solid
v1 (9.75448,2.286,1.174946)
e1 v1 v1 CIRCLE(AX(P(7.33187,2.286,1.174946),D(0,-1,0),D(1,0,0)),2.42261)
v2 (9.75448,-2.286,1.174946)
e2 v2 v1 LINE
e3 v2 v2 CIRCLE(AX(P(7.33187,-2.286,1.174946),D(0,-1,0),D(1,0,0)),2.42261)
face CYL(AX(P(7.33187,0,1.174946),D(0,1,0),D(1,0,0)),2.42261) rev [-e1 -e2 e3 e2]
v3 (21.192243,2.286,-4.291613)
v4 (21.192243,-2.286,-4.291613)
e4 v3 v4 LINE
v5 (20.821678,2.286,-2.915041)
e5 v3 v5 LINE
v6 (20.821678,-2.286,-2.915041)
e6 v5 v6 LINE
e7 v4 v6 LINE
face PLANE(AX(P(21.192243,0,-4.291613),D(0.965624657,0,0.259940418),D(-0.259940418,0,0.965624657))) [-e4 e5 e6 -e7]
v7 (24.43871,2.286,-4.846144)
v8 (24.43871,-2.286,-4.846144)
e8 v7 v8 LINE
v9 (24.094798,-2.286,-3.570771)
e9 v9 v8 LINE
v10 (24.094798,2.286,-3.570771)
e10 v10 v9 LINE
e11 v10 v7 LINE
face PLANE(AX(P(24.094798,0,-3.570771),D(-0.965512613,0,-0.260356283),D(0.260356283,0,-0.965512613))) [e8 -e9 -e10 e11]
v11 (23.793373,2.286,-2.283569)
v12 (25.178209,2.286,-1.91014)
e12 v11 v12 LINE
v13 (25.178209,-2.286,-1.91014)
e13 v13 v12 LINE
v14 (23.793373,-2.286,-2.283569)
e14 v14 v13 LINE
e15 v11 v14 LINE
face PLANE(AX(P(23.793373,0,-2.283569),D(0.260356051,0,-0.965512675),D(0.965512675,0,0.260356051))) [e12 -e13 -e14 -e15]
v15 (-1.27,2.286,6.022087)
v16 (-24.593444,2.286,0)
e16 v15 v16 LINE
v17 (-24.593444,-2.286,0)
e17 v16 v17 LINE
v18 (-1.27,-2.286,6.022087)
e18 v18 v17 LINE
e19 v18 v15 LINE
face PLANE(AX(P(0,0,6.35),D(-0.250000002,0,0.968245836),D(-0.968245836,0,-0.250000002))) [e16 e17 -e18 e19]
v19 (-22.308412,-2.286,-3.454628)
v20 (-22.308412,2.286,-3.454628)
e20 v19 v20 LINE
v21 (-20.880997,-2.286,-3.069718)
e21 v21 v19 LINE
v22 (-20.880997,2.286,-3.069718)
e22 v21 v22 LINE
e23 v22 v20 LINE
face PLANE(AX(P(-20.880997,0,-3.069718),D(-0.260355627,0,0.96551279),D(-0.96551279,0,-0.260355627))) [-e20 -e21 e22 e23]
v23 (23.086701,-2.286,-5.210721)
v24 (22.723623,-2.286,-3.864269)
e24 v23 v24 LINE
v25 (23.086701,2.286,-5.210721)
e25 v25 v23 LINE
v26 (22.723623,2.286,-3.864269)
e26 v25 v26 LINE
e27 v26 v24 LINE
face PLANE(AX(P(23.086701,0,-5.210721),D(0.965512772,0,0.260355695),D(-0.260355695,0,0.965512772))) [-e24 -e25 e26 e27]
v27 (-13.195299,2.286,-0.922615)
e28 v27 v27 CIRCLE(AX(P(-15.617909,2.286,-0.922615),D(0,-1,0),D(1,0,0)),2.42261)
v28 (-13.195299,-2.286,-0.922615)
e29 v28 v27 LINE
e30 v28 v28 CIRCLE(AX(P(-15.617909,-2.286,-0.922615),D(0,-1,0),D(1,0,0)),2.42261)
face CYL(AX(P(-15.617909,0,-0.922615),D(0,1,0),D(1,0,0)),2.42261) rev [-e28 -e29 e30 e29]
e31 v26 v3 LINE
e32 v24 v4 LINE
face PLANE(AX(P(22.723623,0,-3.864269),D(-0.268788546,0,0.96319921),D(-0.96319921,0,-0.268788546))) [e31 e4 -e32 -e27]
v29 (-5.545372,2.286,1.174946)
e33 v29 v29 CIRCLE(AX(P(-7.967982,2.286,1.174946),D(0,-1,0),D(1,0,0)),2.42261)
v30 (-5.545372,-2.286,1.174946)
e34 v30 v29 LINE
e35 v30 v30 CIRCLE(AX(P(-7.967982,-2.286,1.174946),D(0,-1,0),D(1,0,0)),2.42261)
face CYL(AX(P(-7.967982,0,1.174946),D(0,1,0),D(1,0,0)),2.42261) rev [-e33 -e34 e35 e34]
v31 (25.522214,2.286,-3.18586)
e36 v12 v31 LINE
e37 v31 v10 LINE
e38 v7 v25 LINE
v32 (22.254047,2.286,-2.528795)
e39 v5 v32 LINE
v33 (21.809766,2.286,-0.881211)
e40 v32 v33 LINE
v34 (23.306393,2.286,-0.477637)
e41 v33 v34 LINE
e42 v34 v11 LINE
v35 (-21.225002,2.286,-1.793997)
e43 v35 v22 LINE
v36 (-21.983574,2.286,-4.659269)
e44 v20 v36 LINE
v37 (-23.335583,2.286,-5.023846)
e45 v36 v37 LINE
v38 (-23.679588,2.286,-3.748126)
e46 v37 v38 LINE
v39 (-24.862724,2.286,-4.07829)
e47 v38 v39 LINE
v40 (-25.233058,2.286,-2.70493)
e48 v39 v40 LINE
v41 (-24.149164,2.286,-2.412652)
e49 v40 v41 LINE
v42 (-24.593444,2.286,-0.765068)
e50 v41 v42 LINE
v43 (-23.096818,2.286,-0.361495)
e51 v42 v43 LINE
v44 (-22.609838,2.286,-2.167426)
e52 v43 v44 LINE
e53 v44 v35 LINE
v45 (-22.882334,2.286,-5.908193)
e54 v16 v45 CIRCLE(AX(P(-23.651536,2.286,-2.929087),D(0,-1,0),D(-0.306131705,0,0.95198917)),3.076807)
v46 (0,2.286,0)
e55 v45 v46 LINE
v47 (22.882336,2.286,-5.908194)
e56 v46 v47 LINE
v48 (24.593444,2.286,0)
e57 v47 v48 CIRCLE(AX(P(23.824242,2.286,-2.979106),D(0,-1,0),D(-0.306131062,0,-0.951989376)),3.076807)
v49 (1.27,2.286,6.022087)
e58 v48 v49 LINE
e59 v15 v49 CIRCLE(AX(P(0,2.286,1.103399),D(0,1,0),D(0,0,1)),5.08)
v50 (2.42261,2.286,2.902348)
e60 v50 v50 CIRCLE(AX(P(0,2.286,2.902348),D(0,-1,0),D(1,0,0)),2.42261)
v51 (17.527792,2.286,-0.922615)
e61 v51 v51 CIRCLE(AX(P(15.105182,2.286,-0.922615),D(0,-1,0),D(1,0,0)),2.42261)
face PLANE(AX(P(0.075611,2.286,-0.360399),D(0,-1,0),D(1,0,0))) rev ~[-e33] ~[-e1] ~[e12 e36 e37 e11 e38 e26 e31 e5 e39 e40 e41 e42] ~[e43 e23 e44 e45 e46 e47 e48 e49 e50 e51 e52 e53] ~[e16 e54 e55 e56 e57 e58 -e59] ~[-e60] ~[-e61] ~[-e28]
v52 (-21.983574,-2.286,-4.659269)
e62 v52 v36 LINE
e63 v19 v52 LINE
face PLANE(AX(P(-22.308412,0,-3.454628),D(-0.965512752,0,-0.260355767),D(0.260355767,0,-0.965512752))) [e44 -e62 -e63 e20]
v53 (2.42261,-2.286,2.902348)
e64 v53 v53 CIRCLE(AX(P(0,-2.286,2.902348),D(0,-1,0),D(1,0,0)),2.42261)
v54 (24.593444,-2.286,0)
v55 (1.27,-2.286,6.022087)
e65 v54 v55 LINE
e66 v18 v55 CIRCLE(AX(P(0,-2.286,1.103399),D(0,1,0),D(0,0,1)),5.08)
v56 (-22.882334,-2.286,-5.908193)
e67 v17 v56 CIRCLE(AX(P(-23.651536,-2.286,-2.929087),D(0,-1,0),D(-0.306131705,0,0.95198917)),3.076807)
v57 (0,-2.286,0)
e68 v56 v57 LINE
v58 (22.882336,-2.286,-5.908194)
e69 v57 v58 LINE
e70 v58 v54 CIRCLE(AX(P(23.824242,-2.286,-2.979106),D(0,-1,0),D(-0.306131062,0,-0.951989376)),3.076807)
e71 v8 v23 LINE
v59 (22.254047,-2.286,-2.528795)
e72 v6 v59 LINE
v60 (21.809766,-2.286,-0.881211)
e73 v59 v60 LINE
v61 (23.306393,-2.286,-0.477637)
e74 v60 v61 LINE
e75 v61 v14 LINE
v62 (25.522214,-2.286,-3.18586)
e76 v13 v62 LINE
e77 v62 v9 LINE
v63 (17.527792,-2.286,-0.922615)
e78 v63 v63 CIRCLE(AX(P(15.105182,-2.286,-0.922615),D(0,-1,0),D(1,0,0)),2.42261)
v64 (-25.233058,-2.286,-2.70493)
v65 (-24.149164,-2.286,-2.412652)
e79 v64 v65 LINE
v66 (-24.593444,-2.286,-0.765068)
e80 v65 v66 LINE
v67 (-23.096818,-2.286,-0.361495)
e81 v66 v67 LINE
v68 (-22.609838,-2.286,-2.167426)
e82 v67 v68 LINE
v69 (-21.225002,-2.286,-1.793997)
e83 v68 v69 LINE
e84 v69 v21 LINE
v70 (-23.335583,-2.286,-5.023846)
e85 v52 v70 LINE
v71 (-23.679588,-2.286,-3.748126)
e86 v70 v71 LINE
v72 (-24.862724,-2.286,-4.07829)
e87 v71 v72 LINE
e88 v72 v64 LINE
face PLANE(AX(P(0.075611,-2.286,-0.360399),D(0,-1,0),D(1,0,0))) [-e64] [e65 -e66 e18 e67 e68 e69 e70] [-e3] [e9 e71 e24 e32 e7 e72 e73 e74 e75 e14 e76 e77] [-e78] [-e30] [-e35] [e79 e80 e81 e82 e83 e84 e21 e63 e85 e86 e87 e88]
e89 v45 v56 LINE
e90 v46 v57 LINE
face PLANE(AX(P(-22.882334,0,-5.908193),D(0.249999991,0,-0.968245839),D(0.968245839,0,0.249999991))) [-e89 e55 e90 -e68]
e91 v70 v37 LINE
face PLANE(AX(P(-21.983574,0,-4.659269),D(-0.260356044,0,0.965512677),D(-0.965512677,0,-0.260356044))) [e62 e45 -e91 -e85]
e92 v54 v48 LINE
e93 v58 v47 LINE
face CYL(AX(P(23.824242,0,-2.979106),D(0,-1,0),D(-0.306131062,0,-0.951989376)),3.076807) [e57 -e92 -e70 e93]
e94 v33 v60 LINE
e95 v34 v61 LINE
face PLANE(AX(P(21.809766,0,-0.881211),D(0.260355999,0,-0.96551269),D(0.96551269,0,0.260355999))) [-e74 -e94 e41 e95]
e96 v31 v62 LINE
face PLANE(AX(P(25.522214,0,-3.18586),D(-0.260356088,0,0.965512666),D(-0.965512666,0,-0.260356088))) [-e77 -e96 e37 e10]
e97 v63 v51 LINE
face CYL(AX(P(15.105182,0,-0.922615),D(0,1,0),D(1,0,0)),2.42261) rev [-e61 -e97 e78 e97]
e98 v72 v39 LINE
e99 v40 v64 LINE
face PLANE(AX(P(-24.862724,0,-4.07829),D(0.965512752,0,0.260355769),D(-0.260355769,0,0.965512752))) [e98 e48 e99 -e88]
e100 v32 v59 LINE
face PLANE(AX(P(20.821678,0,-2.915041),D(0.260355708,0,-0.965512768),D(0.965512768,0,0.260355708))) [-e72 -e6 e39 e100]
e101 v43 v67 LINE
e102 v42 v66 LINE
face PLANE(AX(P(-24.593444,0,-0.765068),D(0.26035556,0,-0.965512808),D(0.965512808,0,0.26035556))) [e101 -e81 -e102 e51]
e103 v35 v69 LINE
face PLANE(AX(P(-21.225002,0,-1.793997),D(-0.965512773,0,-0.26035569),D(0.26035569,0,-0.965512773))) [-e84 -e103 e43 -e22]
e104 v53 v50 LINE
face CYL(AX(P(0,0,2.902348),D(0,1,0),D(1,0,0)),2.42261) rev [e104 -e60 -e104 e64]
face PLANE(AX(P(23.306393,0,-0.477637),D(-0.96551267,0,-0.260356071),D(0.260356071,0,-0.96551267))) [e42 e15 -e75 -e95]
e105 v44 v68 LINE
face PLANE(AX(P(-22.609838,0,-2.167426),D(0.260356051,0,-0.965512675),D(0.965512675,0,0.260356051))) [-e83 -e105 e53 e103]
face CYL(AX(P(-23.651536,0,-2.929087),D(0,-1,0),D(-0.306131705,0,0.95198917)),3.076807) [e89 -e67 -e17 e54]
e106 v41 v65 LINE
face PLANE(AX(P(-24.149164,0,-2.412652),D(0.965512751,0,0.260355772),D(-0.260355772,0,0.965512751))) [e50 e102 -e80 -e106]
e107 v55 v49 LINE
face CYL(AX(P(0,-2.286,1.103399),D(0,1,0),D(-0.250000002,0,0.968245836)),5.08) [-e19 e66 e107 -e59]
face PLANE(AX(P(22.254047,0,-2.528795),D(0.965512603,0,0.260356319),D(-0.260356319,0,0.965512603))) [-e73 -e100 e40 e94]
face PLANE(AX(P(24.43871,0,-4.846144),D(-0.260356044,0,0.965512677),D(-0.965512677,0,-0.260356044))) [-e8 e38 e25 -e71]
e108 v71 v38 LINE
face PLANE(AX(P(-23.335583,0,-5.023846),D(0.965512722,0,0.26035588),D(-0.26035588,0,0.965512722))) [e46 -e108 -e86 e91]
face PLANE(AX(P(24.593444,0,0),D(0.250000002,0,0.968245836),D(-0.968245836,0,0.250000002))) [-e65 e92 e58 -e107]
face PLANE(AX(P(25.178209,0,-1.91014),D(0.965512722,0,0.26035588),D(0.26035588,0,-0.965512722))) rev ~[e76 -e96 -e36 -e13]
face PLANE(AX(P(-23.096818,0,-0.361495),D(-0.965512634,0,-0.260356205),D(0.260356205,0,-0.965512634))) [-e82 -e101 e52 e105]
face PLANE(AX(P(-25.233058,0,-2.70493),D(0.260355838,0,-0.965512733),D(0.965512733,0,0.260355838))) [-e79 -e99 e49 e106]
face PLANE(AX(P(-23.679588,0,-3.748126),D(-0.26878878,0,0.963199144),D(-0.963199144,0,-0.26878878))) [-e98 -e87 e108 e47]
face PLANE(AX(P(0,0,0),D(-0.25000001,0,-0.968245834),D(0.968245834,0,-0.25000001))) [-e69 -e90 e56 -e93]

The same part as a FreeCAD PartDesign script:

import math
import FreeCAD as App
import Part
import Sketcher
Q = App.Units.Quantity


def edges_at(feature, points):
    """Names of the edges that pass closest to the given points."""
    edges = feature.Shape.Edges
    near = lambda p: min(range(len(edges)), key=lambda i: edges[i].distToShape(Part.Vertex(*p))[0])
    return sorted({f"Edge{near(p) + 1}" for p in points})


def add_polygon(sketch, points):
    """Adds a closed chain of lines whose ends are joined by coincident constraints."""
    first, n = sketch.GeometryCount, len(points)
    for a, b in zip(points, points[1:] + points[:1]):
        sketch.addGeometry(Part.LineSegment(App.Vector(*a, 0), App.Vector(*b, 0)), False)
    for i in range(n):
        sketch.addConstraint(Sketcher.Constraint("Coincident", first + i, 2, first + (i + 1) % n, 1))

doc = App.newDocument("Part")
body = doc.addObject("PartDesign::Body", "Body")

# Sketch on XZ plane
sketch1 = body.newObject("Sketcher::SketchObject", "Sketch")
sketch1.AttachmentSupport = (doc.getObject("XZ_Plane"), [""])
sketch1.MapMode = "FlatFace"
sketch1.addGeometry(Part.LineSegment(App.Vector(0, 6.35, 0), App.Vector(-24.593444, 0, 0)), False)  # 0
sketch1.addGeometry(Part.ArcOfCircle(Part.Circle(App.Vector(-23.651536, -2.929087, 0), App.Vector(0, 0, 1), 3.076807), math.radians(107.826263), math.radians(284.477511)), False)  # 1
sketch1.addGeometry(Part.LineSegment(App.Vector(-22.882334, -5.908193, 0), App.Vector(0, 0, 0)), False)  # 2
sketch1.addGeometry(Part.LineSegment(App.Vector(0, 0, 0), App.Vector(22.882336, -5.908194, 0)), False)  # 3
sketch1.addGeometry(Part.ArcOfCircle(Part.Circle(App.Vector(23.824242, -2.979106, 0), App.Vector(0, 0, 1), 3.076807), math.radians(-107.826224), math.radians(75.522491)), False)  # 4
sketch1.addGeometry(Part.LineSegment(App.Vector(24.593444, 0, 0), App.Vector(0, 6.35, 0)), False)  # 5
add_polygon(sketch1, [(-24.862724, -4.07829), (-25.233058, -2.70493), (-24.149164, -2.412652), (-24.593444, -0.765068), (-23.096818, -0.361495), (-22.609838, -2.167426), (-21.225002, -1.793997), (-20.880997, -3.069718), (-22.308412, -3.454628), (-21.983574, -4.659269), (-23.335583, -5.023846), (-23.679588, -3.748126)])  # lines 6-17
sketch1.addGeometry(Part.Circle(App.Vector(-15.617909, -0.922615, 0), App.Vector(0, 0, 1), 2.42261), False)  # 18
add_polygon(sketch1, [(21.192243, -4.291613), (20.821678, -2.915041), (22.254047, -2.528795), (21.809766, -0.881211), (23.306393, -0.477637), (23.793373, -2.283569), (25.178209, -1.91014), (25.522214, -3.18586), (24.094798, -3.570771), (24.43871, -4.846144), (23.086701, -5.210721), (22.723623, -3.864269)])  # lines 19-30
sketch1.addGeometry(Part.Circle(App.Vector(15.105182, -0.922615, 0), App.Vector(0, 0, 1), 2.42261), False)  # 31
sketch1.addGeometry(Part.Circle(App.Vector(-7.967982, 1.174946, 0), App.Vector(0, 0, 1), 2.42261), False)  # 32
sketch1.addGeometry(Part.Circle(App.Vector(0, 2.902348, 0), App.Vector(0, 0, 1), 2.42261), False)  # 33
sketch1.addGeometry(Part.Circle(App.Vector(7.33187, 1.174946, 0), App.Vector(0, 0, 1), 2.42261), False)  # 34
sketch1.addConstraint([
    Sketcher.Constraint("Coincident", 0, 2, 1, 1),
    Sketcher.Constraint("Coincident", 1, 2, 2, 1),
    Sketcher.Constraint("Coincident", 2, 2, 3, 1),
    Sketcher.Constraint("Coincident", 3, 2, 4, 1),
    Sketcher.Constraint("Coincident", 4, 2, 5, 1),
    Sketcher.Constraint("Coincident", 5, 2, 0, 1),
    Sketcher.Constraint("Coincident", 2, 2, -1, 1),
    Sketcher.Constraint("PointOnObject", 33, 3, -2),
    Sketcher.Constraint("PointOnObject", 0, 2, -1),
    Sketcher.Constraint("PointOnObject", 4, 2, -1),
    Sketcher.Constraint("PointOnObject", 5, 2, -2),
    Sketcher.Constraint("Distance", 0, Q("1 in")),
    Sketcher.Constraint("Distance", 5, Q("1 in")),
    Sketcher.Constraint("DistanceY", -1, 1, 5, 2, Q("0.25 in")),
    Sketcher.Constraint("Diameter", 18, 4.84522),
    Sketcher.Constraint("Diameter", 31, 4.84522),
    Sketcher.Constraint("Diameter", 32, 4.84522),
    Sketcher.Constraint("Diameter", 33, 4.84522),
    Sketcher.Constraint("Diameter", 34, 4.84522),
    Sketcher.Constraint("DistanceX", 32, 3, -1, 1, Q("0.3137001 in")),
    Sketcher.Constraint("Radius", 1, 3.076807),
    Sketcher.Constraint("Radius", 4, 3.076807),
    Sketcher.Constraint("Distance", 11, 1.434301),
    Sketcher.Constraint("Distance", 13, 1.478401),
    Sketcher.Constraint("Distance", 15, 1.400302),
    Sketcher.Constraint("Distance", 24, 1.434301),
    Sketcher.Constraint("Distance", 28, 1.400302),
    Sketcher.Constraint("DistanceX", 11, 2, -1, 1, 21.225002),
    Sketcher.Constraint("DistanceX", -1, 1, 26, 2, 24.094798),
    Sketcher.Constraint("DistanceX", -1, 1, 28, 2, 23.086701),
    Sketcher.Constraint("DistanceY", 32, 3, 33, 3, 1.727402),
    Sketcher.Constraint("DistanceY", 34, 3, 33, 3, 1.727402),
    Sketcher.Constraint("DistanceX", 1, 3, 1, 2, 0.769202),
    Sketcher.Constraint("DistanceX", 4, 3, 4, 2, 0.769202),
    Sketcher.Constraint("DistanceY", 11, 2, 9, 2, 1.432502),
    Sketcher.Constraint("DistanceY", 16, 2, 13, 2, 0.293498),
    Sketcher.Constraint("DistanceY", 3, 2, 20, 2, 3.379399),
    Sketcher.Constraint("DistanceY", 29, 2, 26, 2, 0.293498),
    Sketcher.Constraint("DistanceY", 29, 2, 23, 2, 1.5807),
    Sketcher.Constraint("Distance", 7, 1.12261),
    Sketcher.Constraint("Distance", 12, 1.321289),
    Sketcher.Constraint("Distance", 14, 1.24767),
    Sketcher.Constraint("Distance", 17, 1.22834),
    Sketcher.Constraint("Distance", 20, 1.483532),
    Sketcher.Constraint("Distance", 23, 1.870438),
    Sketcher.Constraint("Distance", 27, 1.320928),
    Sketcher.Constraint("Distance", 30, 1.589889),
    Sketcher.Constraint("DistanceX", 18, 3, -1, 1, 15.617909),
    Sketcher.Constraint("DistanceX", -1, 1, 31, 3, 15.105182),
    Sketcher.Constraint("DistanceX", -1, 1, 34, 3, 7.33187),
    Sketcher.Constraint("DistanceX", 6, 2, -1, 1, 25.233058),
    Sketcher.Constraint("DistanceY", 6, 2, -1, 1, 2.70493),
    Sketcher.Constraint("DistanceY", 7, 2, -1, 1, 2.412652),
    Sketcher.Constraint("DistanceX", 10, 2, -1, 1, 22.609838),
    Sketcher.Constraint("DistanceY", 12, 2, -1, 1, 3.069718),
    Sketcher.Constraint("DistanceY", 13, 2, -1, 1, 3.454628),
    Sketcher.Constraint("DistanceY", 14, 2, -1, 1, 4.659269),
    Sketcher.Constraint("DistanceY", 17, 2, -1, 1, 4.07829),
    Sketcher.Constraint("DistanceY", 19, 2, -1, 1, 2.915041),
    Sketcher.Constraint("DistanceY", 21, 2, -1, 1, 0.881211),
    Sketcher.Constraint("DistanceY", 23, 2, -1, 1, 2.283569),
    Sketcher.Constraint("DistanceX", -1, 1, 24, 2, 25.178209),
    Sketcher.Constraint("DistanceY", 24, 2, -1, 1, 1.91014),
    Sketcher.Constraint("DistanceY", 25, 2, -1, 1, 3.18586),
    Sketcher.Constraint("DistanceX", -1, 1, 27, 2, 24.43871),
    Sketcher.Constraint("DistanceX", 1, 3, 4, 3, 47.475778),
    Sketcher.Constraint("DistanceY", 4, 3, 18, 3, 2.056491),
    Sketcher.Constraint("DistanceY", 4, 3, 31, 3, 2.056491),
    Sketcher.Constraint("DistanceY", 18, 3, 32, 3, 2.097561),
    Sketcher.Constraint("DistanceY", 3, 2, 31, 3, 4.985579),
    Sketcher.Constraint("DistanceX", 8, 2, 7, 2, 0.44428),
    Sketcher.Constraint("DistanceY", 1, 3, 8, 2, 2.164019),
    Sketcher.Constraint("DistanceX", 6, 2, 9, 2, 2.13624),
    Sketcher.Constraint("DistanceY", 1, 3, 10, 2, 0.761661),
    Sketcher.Constraint("DistanceX", 15, 2, 1, 2, 0.453249),
    Sketcher.Constraint("DistanceX", 6, 2, 16, 2, 1.55347),
    Sketcher.Constraint("DistanceX", 19, 2, 3, 2, 2.060658),
    Sketcher.Constraint("DistanceX", 21, 2, 20, 2, 0.444281),
    Sketcher.Constraint("DistanceX", 22, 2, 4, 2, 1.287051),
    Sketcher.Constraint("DistanceX", 4, 3, 25, 2, 1.697972),
    Sketcher.Constraint("DistanceX", 29, 2, 28, 2, 0.363078),
    Sketcher.Constraint("DistanceY", 30, 2, 19, 2, 1.376572),
])
pad1 = body.newObject("PartDesign::Pad", "Pad")
pad1.Profile = sketch1
pad1.Length = Q("0.18 in")
pad1.Midplane = True
doc.recompute()

fillet = body.newObject("PartDesign::Fillet", "Fillet")
fillet.Base = (pad1, edges_at(pad1, [(0, 0, 6.35)]))
fillet.Radius = Q("0.2 in")

doc.recompute()
